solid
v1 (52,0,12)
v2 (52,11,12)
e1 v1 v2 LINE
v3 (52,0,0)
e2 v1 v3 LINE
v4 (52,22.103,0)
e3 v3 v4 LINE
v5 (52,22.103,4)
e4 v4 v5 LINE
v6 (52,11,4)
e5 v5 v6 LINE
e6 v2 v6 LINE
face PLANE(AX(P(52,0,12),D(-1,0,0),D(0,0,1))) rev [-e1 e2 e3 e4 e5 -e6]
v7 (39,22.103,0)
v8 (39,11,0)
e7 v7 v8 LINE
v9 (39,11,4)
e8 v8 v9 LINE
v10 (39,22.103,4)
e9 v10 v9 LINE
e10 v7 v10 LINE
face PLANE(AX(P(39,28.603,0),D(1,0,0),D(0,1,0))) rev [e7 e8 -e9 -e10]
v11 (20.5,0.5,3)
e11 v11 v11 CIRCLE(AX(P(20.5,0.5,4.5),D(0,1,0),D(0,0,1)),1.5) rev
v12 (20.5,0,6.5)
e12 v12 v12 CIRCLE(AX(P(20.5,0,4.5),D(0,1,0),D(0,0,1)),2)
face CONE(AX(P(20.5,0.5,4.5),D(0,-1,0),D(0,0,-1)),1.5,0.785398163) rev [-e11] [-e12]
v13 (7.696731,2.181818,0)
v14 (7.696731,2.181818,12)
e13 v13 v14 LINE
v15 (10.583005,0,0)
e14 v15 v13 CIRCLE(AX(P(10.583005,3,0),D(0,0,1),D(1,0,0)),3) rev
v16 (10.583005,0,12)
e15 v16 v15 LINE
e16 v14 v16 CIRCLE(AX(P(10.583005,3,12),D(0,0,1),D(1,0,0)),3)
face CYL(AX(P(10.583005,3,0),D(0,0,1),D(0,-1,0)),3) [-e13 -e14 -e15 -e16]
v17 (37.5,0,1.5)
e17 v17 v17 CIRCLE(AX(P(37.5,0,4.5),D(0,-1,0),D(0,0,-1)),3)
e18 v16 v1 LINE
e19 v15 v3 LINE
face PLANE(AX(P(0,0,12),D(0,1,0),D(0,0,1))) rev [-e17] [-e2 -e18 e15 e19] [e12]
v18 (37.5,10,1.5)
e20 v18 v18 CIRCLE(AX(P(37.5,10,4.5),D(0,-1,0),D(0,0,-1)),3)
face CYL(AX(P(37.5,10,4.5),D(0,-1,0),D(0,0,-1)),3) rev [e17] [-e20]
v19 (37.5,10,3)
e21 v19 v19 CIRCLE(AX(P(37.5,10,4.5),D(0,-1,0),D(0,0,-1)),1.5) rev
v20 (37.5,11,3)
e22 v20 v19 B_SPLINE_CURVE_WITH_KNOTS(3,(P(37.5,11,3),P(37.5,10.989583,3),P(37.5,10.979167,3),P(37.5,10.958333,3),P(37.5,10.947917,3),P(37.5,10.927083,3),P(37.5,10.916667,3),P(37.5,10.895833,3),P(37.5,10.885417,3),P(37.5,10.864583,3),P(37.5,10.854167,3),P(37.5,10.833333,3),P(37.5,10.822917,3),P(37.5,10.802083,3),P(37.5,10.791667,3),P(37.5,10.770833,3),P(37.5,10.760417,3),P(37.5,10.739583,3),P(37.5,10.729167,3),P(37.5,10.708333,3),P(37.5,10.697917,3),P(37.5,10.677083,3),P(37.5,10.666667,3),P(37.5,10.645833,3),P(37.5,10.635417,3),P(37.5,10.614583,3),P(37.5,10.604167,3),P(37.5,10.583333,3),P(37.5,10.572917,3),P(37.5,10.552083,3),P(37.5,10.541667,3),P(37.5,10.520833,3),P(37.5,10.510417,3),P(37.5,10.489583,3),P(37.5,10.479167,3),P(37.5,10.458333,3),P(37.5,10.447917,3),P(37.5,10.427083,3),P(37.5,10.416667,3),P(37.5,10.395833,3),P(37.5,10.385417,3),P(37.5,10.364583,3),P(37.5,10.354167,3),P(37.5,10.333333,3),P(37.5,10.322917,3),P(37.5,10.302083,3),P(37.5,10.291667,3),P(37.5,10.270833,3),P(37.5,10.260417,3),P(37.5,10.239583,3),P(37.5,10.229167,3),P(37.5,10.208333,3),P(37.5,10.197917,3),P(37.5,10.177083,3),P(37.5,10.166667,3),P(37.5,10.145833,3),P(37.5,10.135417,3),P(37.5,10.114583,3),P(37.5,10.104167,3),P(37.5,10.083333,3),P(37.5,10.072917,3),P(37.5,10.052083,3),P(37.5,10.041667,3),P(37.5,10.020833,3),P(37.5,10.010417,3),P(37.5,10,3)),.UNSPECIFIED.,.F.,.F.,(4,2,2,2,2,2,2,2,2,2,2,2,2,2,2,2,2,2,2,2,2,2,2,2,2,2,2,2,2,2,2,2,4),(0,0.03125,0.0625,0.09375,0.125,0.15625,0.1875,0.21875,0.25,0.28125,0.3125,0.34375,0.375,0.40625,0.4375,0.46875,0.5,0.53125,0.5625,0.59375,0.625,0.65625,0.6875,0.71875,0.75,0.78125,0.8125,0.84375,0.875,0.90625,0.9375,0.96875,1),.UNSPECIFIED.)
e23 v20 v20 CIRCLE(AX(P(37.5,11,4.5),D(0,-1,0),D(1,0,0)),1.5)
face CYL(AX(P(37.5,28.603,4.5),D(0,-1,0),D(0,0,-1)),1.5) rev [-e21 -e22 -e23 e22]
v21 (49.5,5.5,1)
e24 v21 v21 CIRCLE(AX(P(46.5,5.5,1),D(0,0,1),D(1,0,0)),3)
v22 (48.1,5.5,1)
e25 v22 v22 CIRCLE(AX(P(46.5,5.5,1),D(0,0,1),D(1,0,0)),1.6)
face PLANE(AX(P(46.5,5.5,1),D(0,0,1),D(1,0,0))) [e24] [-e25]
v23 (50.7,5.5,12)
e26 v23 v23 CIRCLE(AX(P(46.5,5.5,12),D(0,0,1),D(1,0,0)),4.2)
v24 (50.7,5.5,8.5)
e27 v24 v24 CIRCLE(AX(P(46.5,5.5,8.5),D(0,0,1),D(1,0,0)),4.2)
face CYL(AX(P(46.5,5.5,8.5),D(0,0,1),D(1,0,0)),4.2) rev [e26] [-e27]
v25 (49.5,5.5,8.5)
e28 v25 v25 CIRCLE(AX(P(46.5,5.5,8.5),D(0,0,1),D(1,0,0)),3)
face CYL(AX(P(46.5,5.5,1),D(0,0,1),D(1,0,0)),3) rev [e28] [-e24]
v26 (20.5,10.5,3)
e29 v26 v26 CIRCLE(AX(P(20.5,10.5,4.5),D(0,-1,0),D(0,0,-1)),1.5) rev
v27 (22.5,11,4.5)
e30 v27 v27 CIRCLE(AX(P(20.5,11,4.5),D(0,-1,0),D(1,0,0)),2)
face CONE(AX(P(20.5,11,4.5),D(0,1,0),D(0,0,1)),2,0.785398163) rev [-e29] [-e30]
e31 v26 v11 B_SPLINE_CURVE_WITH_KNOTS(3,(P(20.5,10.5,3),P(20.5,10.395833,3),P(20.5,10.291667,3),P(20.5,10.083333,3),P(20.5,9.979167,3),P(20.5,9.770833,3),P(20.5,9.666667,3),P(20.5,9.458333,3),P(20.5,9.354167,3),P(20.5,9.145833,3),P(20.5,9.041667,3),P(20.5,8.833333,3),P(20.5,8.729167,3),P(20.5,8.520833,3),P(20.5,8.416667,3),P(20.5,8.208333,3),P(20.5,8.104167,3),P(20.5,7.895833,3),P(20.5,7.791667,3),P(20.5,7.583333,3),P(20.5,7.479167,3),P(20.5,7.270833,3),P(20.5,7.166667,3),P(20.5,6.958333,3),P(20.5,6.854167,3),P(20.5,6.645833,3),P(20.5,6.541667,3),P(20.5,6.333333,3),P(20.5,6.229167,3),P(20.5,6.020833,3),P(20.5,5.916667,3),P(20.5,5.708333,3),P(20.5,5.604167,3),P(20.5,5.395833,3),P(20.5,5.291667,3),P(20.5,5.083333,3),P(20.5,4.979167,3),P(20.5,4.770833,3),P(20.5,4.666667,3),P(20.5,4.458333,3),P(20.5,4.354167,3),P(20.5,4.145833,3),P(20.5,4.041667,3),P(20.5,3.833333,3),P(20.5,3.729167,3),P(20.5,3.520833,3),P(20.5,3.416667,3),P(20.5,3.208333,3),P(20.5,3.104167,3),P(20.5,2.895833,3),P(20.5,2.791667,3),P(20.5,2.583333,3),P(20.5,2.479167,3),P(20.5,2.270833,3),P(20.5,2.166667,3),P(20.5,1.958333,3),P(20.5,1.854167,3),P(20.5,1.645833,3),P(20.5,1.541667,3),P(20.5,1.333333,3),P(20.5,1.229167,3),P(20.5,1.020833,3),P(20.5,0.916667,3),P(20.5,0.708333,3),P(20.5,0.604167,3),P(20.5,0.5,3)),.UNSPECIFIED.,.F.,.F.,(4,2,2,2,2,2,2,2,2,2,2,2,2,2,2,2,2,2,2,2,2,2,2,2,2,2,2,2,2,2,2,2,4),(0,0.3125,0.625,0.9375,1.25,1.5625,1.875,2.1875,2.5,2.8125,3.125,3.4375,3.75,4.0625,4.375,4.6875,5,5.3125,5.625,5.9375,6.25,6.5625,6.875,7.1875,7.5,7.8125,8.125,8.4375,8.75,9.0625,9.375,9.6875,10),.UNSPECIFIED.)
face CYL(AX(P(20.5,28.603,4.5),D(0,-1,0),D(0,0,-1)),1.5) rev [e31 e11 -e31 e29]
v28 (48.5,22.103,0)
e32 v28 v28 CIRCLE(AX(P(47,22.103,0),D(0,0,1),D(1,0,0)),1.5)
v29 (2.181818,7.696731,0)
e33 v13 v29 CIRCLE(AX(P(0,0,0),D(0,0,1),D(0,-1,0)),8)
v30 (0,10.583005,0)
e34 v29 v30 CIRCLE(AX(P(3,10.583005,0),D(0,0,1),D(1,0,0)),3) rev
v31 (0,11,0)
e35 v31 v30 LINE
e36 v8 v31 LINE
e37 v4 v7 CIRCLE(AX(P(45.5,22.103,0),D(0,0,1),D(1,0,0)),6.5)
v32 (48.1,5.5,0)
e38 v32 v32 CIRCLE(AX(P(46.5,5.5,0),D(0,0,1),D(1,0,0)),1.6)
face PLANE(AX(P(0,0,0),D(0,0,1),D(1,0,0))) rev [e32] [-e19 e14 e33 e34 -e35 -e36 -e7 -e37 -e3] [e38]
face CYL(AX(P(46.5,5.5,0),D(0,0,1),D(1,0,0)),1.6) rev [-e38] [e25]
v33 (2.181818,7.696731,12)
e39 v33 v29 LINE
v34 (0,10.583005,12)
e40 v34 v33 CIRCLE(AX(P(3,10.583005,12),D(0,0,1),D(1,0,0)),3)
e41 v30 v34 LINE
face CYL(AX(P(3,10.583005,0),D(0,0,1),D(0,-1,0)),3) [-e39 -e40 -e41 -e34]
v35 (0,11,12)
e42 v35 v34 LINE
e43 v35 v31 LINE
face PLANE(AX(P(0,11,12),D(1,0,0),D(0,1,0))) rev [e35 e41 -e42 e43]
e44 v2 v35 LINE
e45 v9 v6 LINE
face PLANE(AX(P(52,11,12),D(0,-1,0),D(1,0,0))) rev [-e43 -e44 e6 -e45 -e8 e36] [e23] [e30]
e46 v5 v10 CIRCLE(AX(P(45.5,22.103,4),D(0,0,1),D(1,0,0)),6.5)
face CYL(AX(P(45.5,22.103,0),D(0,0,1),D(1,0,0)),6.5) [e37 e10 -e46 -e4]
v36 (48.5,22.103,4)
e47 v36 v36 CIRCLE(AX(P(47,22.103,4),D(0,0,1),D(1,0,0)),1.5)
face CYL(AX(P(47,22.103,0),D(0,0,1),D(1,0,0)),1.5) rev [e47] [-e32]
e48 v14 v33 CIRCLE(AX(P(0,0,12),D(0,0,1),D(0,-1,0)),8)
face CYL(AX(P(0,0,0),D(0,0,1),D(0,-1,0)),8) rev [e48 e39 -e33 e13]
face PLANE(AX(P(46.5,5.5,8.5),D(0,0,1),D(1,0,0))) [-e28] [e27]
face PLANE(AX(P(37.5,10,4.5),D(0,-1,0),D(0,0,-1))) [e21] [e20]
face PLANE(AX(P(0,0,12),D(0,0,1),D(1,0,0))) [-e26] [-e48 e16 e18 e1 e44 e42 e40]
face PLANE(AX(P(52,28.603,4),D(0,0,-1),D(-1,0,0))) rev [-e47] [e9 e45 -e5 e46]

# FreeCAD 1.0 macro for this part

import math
import FreeCAD as App
import Part
import Sketcher

V = App.Vector


def edges_at(feature, points):
    """Names of the edges that pass closest to the given points."""
    edges = feature.Shape.Edges
    near = lambda p: min(range(len(edges)), key=lambda i: edges[i].distToShape(Part.Vertex(*p))[0])
    return sorted({f"Edge{near(p) + 1}" for p in points})

doc = App.newDocument("Part")
body = doc.addObject("PartDesign::Body", "Body")

# Sketch on XY plane
sketch1 = body.newObject("Sketcher::SketchObject", "Sketch")
sketch1.AttachmentSupport = (doc.getObject("XY_Plane"), [""])
sketch1.MapMode = "FlatFace"
sketch1.addGeometry(Part.LineSegment(V(0, 11, 0), V(0, 0, 0)), False)
sketch1.addGeometry(Part.LineSegment(V(0, 0, 0), V(52, 0, 0)), False)
sketch1.addGeometry(Part.LineSegment(V(52, 0, 0), V(52, 11, 0)), False)
sketch1.addGeometry(Part.LineSegment(V(52, 11, 0), V(0, 11, 0)), False)
sketch1.addConstraint(Sketcher.Constraint("Coincident", 0, 2, 1, 1))
sketch1.addConstraint(Sketcher.Constraint("Coincident", 1, 2, 2, 1))
sketch1.addConstraint(Sketcher.Constraint("Coincident", 2, 2, 3, 1))
sketch1.addConstraint(Sketcher.Constraint("Coincident", 3, 2, 0, 1))
sketch1.addConstraint(Sketcher.Constraint("Vertical", 0))
sketch1.addConstraint(Sketcher.Constraint("Horizontal", 1))
sketch1.addConstraint(Sketcher.Constraint("Vertical", 2))
sketch1.addConstraint(Sketcher.Constraint("Horizontal", 3))
sketch1.addConstraint(Sketcher.Constraint("Coincident", 0, 2, -1, 1))
sketch1.addConstraint(Sketcher.Constraint("DistanceX", 1, 1, 1, 2, 52.0))
sketch1.addConstraint(Sketcher.Constraint("DistanceY", 0, 2, 0, 1, 11.0))
pad1 = body.newObject("PartDesign::Pad", "Pad")
pad1.Profile = sketch1
pad1.Length = 12

# Sketch on YZ plane
sketch2 = body.newObject("Sketcher::SketchObject", "Sketch001")
sketch2.AttachmentSupport = (doc.getObject("YZ_Plane"), [""])
sketch2.MapMode = "FlatFace"
sketch2.addGeometry(Part.LineSegment(V(8, 0, 0), V(0, 0, 0)), False)
sketch2.addGeometry(Part.LineSegment(V(0, 0, 0), V(0, 12, 0)), False)
sketch2.addGeometry(Part.LineSegment(V(0, 12, 0), V(8, 12, 0)), False)
sketch2.addGeometry(Part.LineSegment(V(8, 12, 0), V(8, 0, 0)), False)
sketch2.addConstraint(Sketcher.Constraint("Coincident", 0, 2, 1, 1))
sketch2.addConstraint(Sketcher.Constraint("Coincident", 1, 2, 2, 1))
sketch2.addConstraint(Sketcher.Constraint("Coincident", 2, 2, 3, 1))
sketch2.addConstraint(Sketcher.Constraint("Coincident", 3, 2, 0, 1))
sketch2.addConstraint(Sketcher.Constraint("Horizontal", 0))
sketch2.addConstraint(Sketcher.Constraint("Vertical", 1))
sketch2.addConstraint(Sketcher.Constraint("Horizontal", 2))
sketch2.addConstraint(Sketcher.Constraint("Vertical", 3))
sketch2.addConstraint(Sketcher.Constraint("Coincident", 0, 2, -1, 1))
sketch2.addConstraint(Sketcher.Constraint("DistanceX", 0, 2, 0, 1, 8.0))
sketch2.addConstraint(Sketcher.Constraint("DistanceY", 1, 1, 1, 2, 12.0))
groove = body.newObject("PartDesign::Groove", "Groove")
groove.Profile = sketch2
groove.ReferenceAxis = (sketch2, ["V_Axis"])
groove.Angle = 90
groove.Reversed = True

# Sketch on XZ plane
sketch3 = body.newObject("Sketcher::SketchObject", "Sketch002")
sketch3.AttachmentSupport = (doc.getObject("XZ_Plane"), [""])
sketch3.MapMode = "FlatFace"
sketch3.AttachmentOffset = App.Placement(V(0, 0, -11), App.Rotation())
sketch3.addGeometry(Part.LineSegment(V(39, 0, 0), V(39, 4, 0)), False)
sketch3.addGeometry(Part.LineSegment(V(39, 4, 0), V(52, 4, 0)), False)
sketch3.addGeometry(Part.LineSegment(V(52, 4, 0), V(52, 0, 0)), False)
sketch3.addGeometry(Part.LineSegment(V(52, 0, 0), V(39, 0, 0)), False)
sketch3.addConstraint(Sketcher.Constraint("Coincident", 0, 2, 1, 1))
sketch3.addConstraint(Sketcher.Constraint("Coincident", 1, 2, 2, 1))
sketch3.addConstraint(Sketcher.Constraint("Coincident", 2, 2, 3, 1))
sketch3.addConstraint(Sketcher.Constraint("Coincident", 3, 2, 0, 1))
sketch3.addConstraint(Sketcher.Constraint("Vertical", 0))
sketch3.addConstraint(Sketcher.Constraint("Horizontal", 1))
sketch3.addConstraint(Sketcher.Constraint("Vertical", 2))
sketch3.addConstraint(Sketcher.Constraint("Horizontal", 3))
sketch3.addConstraint(Sketcher.Constraint("PointOnObject", 2, 2, -1))
sketch3.addConstraint(Sketcher.Constraint("DistanceX", 1, 1, 1, 2, 13.0))
sketch3.addConstraint(Sketcher.Constraint("DistanceY", 0, 1, 0, 2, 4.0))
sketch3.addConstraint(Sketcher.Constraint("DistanceX", -1, 1, 0, 2, 39.0))
pad2 = body.newObject("PartDesign::Pad", "Pad001")
pad2.Profile = sketch3
pad2.Length = 17.603
pad2.Reversed = True

# Sketch on XY plane
sketch4 = body.newObject("Sketcher::SketchObject", "Sketch003")
sketch4.AttachmentSupport = (doc.getObject("XY_Plane"), [""])
sketch4.MapMode = "FlatFace"
sketch4.AttachmentOffset = App.Placement(V(0, 0, 4), App.Rotation())
sketch4.addGeometry(Part.ArcOfCircle(Part.Circle(V(46, 22, 0), V(0, 0, 1), 6), math.radians(0), math.radians(90)), False)
sketch4.addGeometry(Part.LineSegment(V(52, 22, 0), V(52, 29, 0)), False)
sketch4.addGeometry(Part.LineSegment(V(52, 29, 0), V(46, 29, 0)), False)
sketch4.addGeometry(Part.LineSegment(V(39, 29, 0), V(39, 22, 0)), False)
sketch4.addGeometry(Part.ArcOfCircle(Part.Circle(V(45, 22, 0), V(0, 0, 1), 6), math.radians(90), math.radians(180)), False)
sketch4.addGeometry(Part.LineSegment(V(46, 29, 0), V(39, 29, 0)), False)
sketch4.addConstraint(Sketcher.Constraint("Tangent", 0, 1, 1, 1))
sketch4.addConstraint(Sketcher.Constraint("Coincident", 1, 2, 2, 1))
sketch4.addConstraint(Sketcher.Constraint("Tangent", 2, 2, 0, 2))
sketch4.addConstraint(Sketcher.Constraint("Tangent", 3, 2, 4, 2))
sketch4.addConstraint(Sketcher.Constraint("Tangent", 4, 1, 5, 1))
sketch4.addConstraint(Sketcher.Constraint("Coincident", 5, 2, 3, 1))
sketch4.addConstraint(Sketcher.Constraint("Vertical", 1))
sketch4.addConstraint(Sketcher.Constraint("Horizontal", 2))
sketch4.addConstraint(Sketcher.Constraint("Vertical", 3))
sketch4.addConstraint(Sketcher.Constraint("Horizontal", 5))
sketch4.addConstraint(Sketcher.Constraint("Coincident", 4, 3, 0, 3))
sketch4.addConstraint(Sketcher.Constraint("Equal", 0, 4))
sketch4.addConstraint(Sketcher.Constraint("Radius", 0, 6.5))
sketch4.addConstraint(Sketcher.Constraint("DistanceX", -1, 1, 0, 1, 52.0))
sketch4.addConstraint(Sketcher.Constraint("DistanceY", -1, 1, 0, 3, 22.103))
pocket1 = body.newObject("PartDesign::Pocket", "Pocket")
pocket1.Profile = sketch4
pocket1.Type = "ThroughAll"

# Sketch on XY plane
sketch5 = body.newObject("Sketcher::SketchObject", "Sketch004")
sketch5.AttachmentSupport = (doc.getObject("XY_Plane"), [""])
sketch5.MapMode = "FlatFace"
sketch5.AttachmentOffset = App.Placement(V(0, 0, 4), App.Rotation())
sketch5.addGeometry(Part.Circle(V(47, 22.1, 0), V(0, 0, 1), 1.5), False)
sketch5.addConstraint(Sketcher.Constraint("Diameter", 0, 3.0))
sketch5.addConstraint(Sketcher.Constraint("DistanceX", -1, 1, 0, 3, 47.0))
sketch5.addConstraint(Sketcher.Constraint("DistanceY", -1, 1, 0, 3, 22.103))
pocket2 = body.newObject("PartDesign::Pocket", "Pocket001")
pocket2.Profile = sketch5
pocket2.Type = "ThroughAll"

# Sketch on XY plane
sketch6 = body.newObject("Sketcher::SketchObject", "Sketch005")
sketch6.AttachmentSupport = (doc.getObject("XY_Plane"), [""])
sketch6.MapMode = "FlatFace"
sketch6.AttachmentOffset = App.Placement(V(0, 0, 12), App.Rotation())
sketch6.addGeometry(Part.Circle(V(46.5, 5.5, 0), V(0, 0, 1), 4.2), False)
sketch6.addConstraint(Sketcher.Constraint("Diameter", 0, 8.4))
sketch6.addConstraint(Sketcher.Constraint("DistanceX", -1, 1, 0, 3, 46.5))
sketch6.addConstraint(Sketcher.Constraint("DistanceY", -1, 1, 0, 3, 5.5))
pocket3 = body.newObject("PartDesign::Pocket", "Pocket002")
pocket3.Profile = sketch6
pocket3.Length = 3.5

# Sketch on XY plane
sketch7 = body.newObject("Sketcher::SketchObject", "Sketch006")
sketch7.AttachmentSupport = (doc.getObject("XY_Plane"), [""])
sketch7.MapMode = "FlatFace"
sketch7.AttachmentOffset = App.Placement(V(0, 0, 8.5), App.Rotation())
sketch7.addGeometry(Part.Circle(V(46.5, 5.5, 0), V(0, 0, 1), 3), False)
sketch7.addConstraint(Sketcher.Constraint("Diameter", 0, 6.0))
sketch7.addConstraint(Sketcher.Constraint("DistanceX", -1, 1, 0, 3, 46.5))
sketch7.addConstraint(Sketcher.Constraint("DistanceY", -1, 1, 0, 3, 5.5))
pocket4 = body.newObject("PartDesign::Pocket", "Pocket003")
pocket4.Profile = sketch7
pocket4.Length = 7.5

# Sketch on XY plane
sketch8 = body.newObject("Sketcher::SketchObject", "Sketch007")
sketch8.AttachmentSupport = (doc.getObject("XY_Plane"), [""])
sketch8.MapMode = "FlatFace"
sketch8.AttachmentOffset = App.Placement(V(0, 0, 1), App.Rotation())
sketch8.addGeometry(Part.Circle(V(46.5, 5.5, 0), V(0, 0, 1), 1.6), False)
sketch8.addConstraint(Sketcher.Constraint("Diameter", 0, 3.2))
sketch8.addConstraint(Sketcher.Constraint("DistanceX", -1, 1, 0, 3, 46.5))
sketch8.addConstraint(Sketcher.Constraint("DistanceY", -1, 1, 0, 3, 5.5))
pocket5 = body.newObject("PartDesign::Pocket", "Pocket004")
pocket5.Profile = sketch8
pocket5.Type = "ThroughAll"

# Sketch on XZ plane
sketch9 = body.newObject("Sketcher::SketchObject", "Sketch008")
sketch9.AttachmentSupport = (doc.getObject("XZ_Plane"), [""])
sketch9.MapMode = "FlatFace"
sketch9.addGeometry(Part.Circle(V(37.5, 4.5, 0), V(0, 0, 1), 1.5), False)
sketch9.addGeometry(Part.Circle(V(20.5, 4.5, 0), V(0, 0, 1), 1.5), False)
sketch9.addConstraint(Sketcher.Constraint("Equal", 0, 1))
sketch9.addConstraint(Sketcher.Constraint("Horizontal", 0, 3, 1, 3))
sketch9.addConstraint(Sketcher.Constraint("Diameter", 0, 3.0))
sketch9.addConstraint(Sketcher.Constraint("DistanceX", 1, 3, 0, 3, 17.0))
sketch9.addConstraint(Sketcher.Constraint("DistanceX", -1, 1, 0, 3, 37.5))
sketch9.addConstraint(Sketcher.Constraint("DistanceY", -1, 1, 0, 3, 4.5))
pocket6 = body.newObject("PartDesign::Pocket", "Pocket005")
pocket6.Profile = sketch9
pocket6.Type = "ThroughAll"

# Sketch on XZ plane
sketch10 = body.newObject("Sketcher::SketchObject", "Sketch009")
sketch10.AttachmentSupport = (doc.getObject("XZ_Plane"), [""])
sketch10.MapMode = "FlatFace"
sketch10.addGeometry(Part.Circle(V(37.5, 4.5, 0), V(0, 0, 1), 3), False)
sketch10.addConstraint(Sketcher.Constraint("Diameter", 0, 6.0))
sketch10.addConstraint(Sketcher.Constraint("DistanceX", -1, 1, 0, 3, 37.5))
sketch10.addConstraint(Sketcher.Constraint("DistanceY", -1, 1, 0, 3, 4.5))
pocket7 = body.newObject("PartDesign::Pocket", "Pocket006")
pocket7.Profile = sketch10
pocket7.Length = 10
doc.recompute()

chamfer = body.newObject("PartDesign::Chamfer", "Chamfer")
chamfer.Base = (pocket7, edges_at(pocket7, [(20.5, 11, 6), (20.5, 0, 6)]))
chamfer.Size = 0.5
doc.recompute()

fillet = body.newObject("PartDesign::Fillet", "Fillet")
fillet.Base = (chamfer, edges_at(chamfer, [(0, 8, 6)]))
fillet.Radius = 3
doc.recompute()

fillet2 = body.newObject("PartDesign::Fillet", "Fillet001")
fillet2.Base = (fillet, edges_at(fillet, [(8, 0, 6)]))
fillet2.Radius = 3

doc.recompute()
